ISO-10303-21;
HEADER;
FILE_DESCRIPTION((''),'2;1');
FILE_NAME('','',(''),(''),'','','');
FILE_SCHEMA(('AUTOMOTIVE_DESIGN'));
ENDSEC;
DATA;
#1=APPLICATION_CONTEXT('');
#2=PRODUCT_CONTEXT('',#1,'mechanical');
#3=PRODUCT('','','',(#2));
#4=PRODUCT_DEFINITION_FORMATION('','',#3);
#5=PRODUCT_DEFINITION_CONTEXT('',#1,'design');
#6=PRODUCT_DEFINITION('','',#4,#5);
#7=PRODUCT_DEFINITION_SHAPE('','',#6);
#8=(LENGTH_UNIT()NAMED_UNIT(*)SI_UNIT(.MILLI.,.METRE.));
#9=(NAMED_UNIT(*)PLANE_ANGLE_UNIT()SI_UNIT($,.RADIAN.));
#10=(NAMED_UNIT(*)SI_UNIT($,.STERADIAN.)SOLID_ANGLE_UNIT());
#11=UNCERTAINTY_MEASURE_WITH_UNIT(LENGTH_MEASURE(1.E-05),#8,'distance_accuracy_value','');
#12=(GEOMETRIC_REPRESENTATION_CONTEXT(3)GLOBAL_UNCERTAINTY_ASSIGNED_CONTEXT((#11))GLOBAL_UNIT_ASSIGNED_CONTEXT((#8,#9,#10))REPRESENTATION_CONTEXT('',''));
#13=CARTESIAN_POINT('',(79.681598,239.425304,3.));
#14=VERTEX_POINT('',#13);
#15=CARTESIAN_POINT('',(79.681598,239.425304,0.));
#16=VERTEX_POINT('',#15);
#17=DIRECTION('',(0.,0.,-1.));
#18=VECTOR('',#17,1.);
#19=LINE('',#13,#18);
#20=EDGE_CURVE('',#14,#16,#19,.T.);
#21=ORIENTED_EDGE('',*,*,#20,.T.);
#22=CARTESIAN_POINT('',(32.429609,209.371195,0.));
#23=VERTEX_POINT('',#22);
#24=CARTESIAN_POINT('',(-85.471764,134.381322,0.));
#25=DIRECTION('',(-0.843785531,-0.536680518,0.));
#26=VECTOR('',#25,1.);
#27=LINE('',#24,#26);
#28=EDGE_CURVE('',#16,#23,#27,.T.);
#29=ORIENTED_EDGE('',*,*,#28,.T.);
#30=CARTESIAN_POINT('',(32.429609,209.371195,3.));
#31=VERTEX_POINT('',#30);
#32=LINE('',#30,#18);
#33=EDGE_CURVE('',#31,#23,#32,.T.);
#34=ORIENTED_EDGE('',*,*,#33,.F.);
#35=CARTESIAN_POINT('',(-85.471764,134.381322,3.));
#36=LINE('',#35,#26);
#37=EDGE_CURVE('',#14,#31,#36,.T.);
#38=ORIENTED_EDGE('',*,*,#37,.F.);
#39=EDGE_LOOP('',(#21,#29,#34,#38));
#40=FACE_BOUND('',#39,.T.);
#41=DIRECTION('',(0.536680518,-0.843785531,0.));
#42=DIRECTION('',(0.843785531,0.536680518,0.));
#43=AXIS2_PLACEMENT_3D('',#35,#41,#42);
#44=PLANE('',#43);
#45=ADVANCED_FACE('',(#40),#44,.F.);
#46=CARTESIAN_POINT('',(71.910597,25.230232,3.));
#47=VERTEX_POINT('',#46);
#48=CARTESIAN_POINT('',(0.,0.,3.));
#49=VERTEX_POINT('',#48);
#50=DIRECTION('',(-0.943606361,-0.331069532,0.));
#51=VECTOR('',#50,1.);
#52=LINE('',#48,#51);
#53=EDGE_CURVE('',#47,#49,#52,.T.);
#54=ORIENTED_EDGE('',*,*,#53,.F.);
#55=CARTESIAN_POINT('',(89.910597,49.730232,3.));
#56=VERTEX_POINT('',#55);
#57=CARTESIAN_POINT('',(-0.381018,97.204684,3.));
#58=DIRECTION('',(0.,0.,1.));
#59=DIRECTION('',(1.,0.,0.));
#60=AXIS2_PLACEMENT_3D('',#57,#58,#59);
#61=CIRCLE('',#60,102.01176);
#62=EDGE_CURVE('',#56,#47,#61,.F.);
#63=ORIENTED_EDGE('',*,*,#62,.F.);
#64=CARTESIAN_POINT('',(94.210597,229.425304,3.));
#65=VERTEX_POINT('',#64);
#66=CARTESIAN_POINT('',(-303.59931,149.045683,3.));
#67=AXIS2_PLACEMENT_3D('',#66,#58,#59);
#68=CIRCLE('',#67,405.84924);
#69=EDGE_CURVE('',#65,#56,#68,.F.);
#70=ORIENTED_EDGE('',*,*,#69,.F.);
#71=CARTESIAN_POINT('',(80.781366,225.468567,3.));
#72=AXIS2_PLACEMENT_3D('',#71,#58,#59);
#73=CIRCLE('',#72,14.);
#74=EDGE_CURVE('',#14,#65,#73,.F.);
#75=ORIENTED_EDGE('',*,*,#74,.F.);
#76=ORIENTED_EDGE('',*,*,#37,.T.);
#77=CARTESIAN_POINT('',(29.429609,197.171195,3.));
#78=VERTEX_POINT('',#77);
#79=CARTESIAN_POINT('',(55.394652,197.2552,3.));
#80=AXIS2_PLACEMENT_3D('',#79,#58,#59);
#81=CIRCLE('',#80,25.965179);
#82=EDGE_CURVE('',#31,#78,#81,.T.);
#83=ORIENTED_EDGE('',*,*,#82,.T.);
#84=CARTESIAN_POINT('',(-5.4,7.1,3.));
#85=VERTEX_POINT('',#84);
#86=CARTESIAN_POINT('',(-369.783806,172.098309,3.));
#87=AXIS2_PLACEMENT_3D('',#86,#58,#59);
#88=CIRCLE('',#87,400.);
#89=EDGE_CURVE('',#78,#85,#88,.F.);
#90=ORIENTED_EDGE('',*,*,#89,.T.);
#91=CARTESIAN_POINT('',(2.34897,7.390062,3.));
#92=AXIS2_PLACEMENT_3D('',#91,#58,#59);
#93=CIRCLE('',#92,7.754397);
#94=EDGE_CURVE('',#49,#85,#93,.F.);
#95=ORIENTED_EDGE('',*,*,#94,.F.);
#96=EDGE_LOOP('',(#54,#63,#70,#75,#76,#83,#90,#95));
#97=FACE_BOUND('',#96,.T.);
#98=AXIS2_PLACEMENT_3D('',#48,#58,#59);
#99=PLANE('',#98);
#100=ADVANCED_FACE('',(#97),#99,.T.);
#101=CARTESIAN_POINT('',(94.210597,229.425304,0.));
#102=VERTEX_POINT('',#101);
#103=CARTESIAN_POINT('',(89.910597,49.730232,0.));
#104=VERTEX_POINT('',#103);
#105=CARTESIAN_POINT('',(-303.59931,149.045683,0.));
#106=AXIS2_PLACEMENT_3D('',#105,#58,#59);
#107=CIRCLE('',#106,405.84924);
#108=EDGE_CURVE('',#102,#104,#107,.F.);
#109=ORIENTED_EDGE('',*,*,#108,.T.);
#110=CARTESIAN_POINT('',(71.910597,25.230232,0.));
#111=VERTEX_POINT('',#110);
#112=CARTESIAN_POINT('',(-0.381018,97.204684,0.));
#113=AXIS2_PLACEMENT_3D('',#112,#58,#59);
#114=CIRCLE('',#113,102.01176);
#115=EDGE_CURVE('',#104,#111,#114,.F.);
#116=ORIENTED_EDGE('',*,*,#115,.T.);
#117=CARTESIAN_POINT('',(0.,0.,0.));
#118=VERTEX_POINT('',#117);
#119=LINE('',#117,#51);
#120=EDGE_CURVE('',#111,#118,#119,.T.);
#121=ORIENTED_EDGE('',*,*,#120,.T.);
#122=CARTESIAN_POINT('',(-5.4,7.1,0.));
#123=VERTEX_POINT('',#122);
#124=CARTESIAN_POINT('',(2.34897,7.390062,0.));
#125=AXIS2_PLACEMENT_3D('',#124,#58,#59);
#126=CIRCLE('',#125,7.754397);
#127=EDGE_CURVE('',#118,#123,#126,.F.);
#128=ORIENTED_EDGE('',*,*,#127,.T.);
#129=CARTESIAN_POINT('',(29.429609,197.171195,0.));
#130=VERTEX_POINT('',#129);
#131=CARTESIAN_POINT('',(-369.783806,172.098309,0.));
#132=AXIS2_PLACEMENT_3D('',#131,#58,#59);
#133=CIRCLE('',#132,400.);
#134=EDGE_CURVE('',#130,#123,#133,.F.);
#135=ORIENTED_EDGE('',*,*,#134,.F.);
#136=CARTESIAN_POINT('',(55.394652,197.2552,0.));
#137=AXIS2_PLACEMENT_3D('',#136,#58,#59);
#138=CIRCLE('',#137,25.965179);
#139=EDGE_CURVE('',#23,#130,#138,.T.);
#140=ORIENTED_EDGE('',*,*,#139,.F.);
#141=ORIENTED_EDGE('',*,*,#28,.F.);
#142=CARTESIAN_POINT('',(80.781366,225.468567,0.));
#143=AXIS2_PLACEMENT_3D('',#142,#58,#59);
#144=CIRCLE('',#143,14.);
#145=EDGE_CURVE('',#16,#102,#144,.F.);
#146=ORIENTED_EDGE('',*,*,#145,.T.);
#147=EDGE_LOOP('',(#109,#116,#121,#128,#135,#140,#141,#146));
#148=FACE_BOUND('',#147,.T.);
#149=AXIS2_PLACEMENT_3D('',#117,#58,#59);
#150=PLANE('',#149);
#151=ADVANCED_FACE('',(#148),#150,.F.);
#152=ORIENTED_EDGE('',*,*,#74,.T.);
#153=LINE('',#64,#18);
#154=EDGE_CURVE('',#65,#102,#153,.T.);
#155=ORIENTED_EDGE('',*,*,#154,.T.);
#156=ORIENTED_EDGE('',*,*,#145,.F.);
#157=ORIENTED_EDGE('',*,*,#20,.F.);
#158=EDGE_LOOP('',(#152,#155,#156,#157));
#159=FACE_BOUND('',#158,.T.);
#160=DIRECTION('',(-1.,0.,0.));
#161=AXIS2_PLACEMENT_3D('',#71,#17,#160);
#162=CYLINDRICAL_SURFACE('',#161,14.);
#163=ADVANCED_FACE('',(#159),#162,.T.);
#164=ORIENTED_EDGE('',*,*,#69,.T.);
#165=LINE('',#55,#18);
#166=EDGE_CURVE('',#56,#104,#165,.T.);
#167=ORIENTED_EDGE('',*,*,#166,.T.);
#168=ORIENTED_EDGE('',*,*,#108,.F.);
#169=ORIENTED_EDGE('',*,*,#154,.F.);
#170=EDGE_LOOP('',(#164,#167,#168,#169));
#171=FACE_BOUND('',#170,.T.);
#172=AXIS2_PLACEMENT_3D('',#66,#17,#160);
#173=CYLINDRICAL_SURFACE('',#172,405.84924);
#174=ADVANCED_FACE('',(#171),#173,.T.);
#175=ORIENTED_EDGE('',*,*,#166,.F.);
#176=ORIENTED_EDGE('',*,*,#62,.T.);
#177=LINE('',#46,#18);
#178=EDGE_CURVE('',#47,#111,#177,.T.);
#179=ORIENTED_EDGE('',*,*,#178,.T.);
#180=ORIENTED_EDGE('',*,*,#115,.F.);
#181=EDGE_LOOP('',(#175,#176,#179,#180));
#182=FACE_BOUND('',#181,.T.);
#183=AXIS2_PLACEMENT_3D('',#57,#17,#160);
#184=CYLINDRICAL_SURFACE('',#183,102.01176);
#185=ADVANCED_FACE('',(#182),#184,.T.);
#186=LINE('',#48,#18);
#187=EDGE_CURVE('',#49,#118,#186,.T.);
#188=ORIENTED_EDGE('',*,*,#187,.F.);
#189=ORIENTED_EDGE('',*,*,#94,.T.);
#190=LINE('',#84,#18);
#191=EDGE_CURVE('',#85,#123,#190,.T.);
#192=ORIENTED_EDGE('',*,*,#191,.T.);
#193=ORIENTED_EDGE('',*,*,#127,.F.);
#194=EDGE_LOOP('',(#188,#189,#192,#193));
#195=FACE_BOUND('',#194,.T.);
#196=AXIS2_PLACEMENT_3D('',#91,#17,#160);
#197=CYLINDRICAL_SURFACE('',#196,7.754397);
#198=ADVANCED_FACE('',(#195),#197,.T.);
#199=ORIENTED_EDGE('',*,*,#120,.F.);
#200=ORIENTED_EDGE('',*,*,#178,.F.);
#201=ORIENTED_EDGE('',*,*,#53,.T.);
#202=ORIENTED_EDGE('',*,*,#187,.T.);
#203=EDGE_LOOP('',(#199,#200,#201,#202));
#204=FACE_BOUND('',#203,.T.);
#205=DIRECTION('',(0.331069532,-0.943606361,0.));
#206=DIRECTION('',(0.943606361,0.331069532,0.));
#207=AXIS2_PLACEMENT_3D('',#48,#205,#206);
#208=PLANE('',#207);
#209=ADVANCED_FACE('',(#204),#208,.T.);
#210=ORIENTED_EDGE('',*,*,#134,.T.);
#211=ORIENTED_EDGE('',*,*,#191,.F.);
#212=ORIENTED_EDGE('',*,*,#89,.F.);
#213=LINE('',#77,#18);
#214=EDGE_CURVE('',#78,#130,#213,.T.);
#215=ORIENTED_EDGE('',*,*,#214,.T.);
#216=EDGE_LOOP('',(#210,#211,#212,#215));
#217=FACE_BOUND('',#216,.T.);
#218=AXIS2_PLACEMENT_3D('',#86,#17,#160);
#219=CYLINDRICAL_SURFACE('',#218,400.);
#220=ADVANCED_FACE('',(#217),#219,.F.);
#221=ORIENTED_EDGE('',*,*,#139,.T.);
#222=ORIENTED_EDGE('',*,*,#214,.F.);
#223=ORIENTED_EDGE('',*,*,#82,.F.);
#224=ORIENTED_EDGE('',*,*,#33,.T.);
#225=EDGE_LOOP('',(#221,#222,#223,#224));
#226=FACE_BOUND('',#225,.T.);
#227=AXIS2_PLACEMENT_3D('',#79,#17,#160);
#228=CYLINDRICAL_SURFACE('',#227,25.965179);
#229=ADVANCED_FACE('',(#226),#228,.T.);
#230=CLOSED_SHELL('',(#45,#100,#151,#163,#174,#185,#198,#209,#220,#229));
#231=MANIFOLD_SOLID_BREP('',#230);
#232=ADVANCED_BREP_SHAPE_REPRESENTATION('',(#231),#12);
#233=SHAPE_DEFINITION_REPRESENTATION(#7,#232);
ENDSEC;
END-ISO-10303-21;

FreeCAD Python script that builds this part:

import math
import FreeCAD as App
import Part
import Sketcher
from FreeCAD import Vector
Q = App.Units.Quantity

doc = App.newDocument("Part")
body = doc.addObject("PartDesign::Body", "Body")

sketch1 = body.newObject("Sketcher::SketchObject", "Sketch")
sketch1.AttachmentSupport = (doc.getObject("XY_Plane"), [""])
sketch1.MapMode = "FlatFace"
sketch1.addGeometry([
    Part.LineSegment(Vector(79.7, 239.4, 0), Vector(32.4, 209.4, 0)),
    Part.ArcOfCircle(Part.Circle(Vector(55.4, 197.3, 0), Vector(0, 0, 1), 26), math.radians(152), math.radians(180)),
    Part.ArcOfCircle(Part.Circle(Vector(-369.8, 172.1, 0), Vector(0, 0, 1), 400), math.radians(-24), math.radians(4)),
    Part.ArcOfCircle(Part.Circle(Vector(2.3, 7.4, 0), Vector(0, 0, 1), 7.8), math.radians(-178), math.radians(-137)),
    Part.ArcOfCircle(Part.Circle(Vector(2.3, 7.4, 0), Vector(0, 0, 1), 7.8), math.radians(-137), math.radians(-108)),
    Part.LineSegment(Vector(0, 0, 0), Vector(71.9, 25.2, 0)),
    Part.ArcOfCircle(Part.Circle(Vector(-0.4, 97.2, 0), Vector(0, 0, 1), 102), math.radians(-44.87), math.radians(-27.73)),
    Part.ArcOfCircle(Part.Circle(Vector(-303.6, 149, 0), Vector(0, 0, 1), 405.8), math.radians(-14), math.radians(11)),
    Part.ArcOfCircle(Part.Circle(Vector(80.8, 225.5, 0), Vector(0, 0, 1), 14), math.radians(16), math.radians(95)),
], False)
sketch1.addConstraint([
    Sketcher.Constraint("Coincident", 0, 2, 1, 1),
    Sketcher.Constraint("Coincident", 1, 2, 2, 2),
    Sketcher.Constraint("Coincident", 2, 1, 3, 1),
    Sketcher.Constraint("Tangent", 3, 2, 4, 1),
    Sketcher.Constraint("Coincident", 4, 2, 5, 1),
    Sketcher.Constraint("Coincident", 5, 2, 6, 1),
    Sketcher.Constraint("Coincident", 6, 2, 7, 1),
    Sketcher.Constraint("Coincident", 7, 2, 8, 1),
    Sketcher.Constraint("Coincident", 8, 2, 0, 1),
    Sketcher.Constraint("Coincident", 4, 2, -1, 1),
    Sketcher.Constraint("Equal", 3, 4),
    Sketcher.Constraint("Radius", 2, Q("400 mm")),
    Sketcher.Constraint("Radius", 8, Q("14 mm")),
    Sketcher.Constraint("Distance", 0, Q("56 mm")),
    Sketcher.Constraint("DistanceX", 1, 2, 0, 2, Q("3 mm")),
    Sketcher.Constraint("DistanceX", 5, 2, 6, 2, Q("18 mm")),
    Sketcher.Constraint("DistanceY", 7, 2, 8, 2, Q("10 mm")),
    Sketcher.Constraint("DistanceX", 2, 1, -1, 1, Q("5.4 mm")),
    Sketcher.Constraint("DistanceY", -1, 1, 2, 1, Q("7.1 mm")),
    Sketcher.Constraint("DistanceX", 3, 2, -1, 1, Q("3.3 mm")),
    Sketcher.Constraint("DistanceY", 1, 2, 0, 2, Q("12.2 mm")),
    Sketcher.Constraint("DistanceY", 5, 2, 6, 2, Q("24.5 mm")),
    Sketcher.Constraint("Radius", 1, Q("25.965179 mm")),
    Sketcher.Constraint("Radius", 6, Q("102.01176 mm")),
    Sketcher.Constraint("Radius", 7, Q("405.84924 mm")),
    Sketcher.Constraint("Radius", 3, Q("7.754397 mm")),
    Sketcher.Constraint("DistanceY", 6, 3, 7, 3, Q("51.840999 mm")),
    Sketcher.Constraint("DistanceX", 8, 2, 7, 2, Q("14.528998 mm")),
    Sketcher.Constraint("DistanceY", -1, 1, 1, 3, Q("197.2552 mm")),
    Sketcher.Constraint("DistanceX", -1, 1, 8, 2, Q("79.681598 mm")),
    Sketcher.Constraint("DistanceY", -1, 1, 2, 3, Q("172.098309 mm")),
    Sketcher.Constraint("DistanceX", 7, 3, -1, 1, Q("303.59931 mm")),
])
pad1 = body.newObject("PartDesign::Pad", "Pad")
pad1.Profile = sketch1
pad1.Length = 3

doc.recompute()
